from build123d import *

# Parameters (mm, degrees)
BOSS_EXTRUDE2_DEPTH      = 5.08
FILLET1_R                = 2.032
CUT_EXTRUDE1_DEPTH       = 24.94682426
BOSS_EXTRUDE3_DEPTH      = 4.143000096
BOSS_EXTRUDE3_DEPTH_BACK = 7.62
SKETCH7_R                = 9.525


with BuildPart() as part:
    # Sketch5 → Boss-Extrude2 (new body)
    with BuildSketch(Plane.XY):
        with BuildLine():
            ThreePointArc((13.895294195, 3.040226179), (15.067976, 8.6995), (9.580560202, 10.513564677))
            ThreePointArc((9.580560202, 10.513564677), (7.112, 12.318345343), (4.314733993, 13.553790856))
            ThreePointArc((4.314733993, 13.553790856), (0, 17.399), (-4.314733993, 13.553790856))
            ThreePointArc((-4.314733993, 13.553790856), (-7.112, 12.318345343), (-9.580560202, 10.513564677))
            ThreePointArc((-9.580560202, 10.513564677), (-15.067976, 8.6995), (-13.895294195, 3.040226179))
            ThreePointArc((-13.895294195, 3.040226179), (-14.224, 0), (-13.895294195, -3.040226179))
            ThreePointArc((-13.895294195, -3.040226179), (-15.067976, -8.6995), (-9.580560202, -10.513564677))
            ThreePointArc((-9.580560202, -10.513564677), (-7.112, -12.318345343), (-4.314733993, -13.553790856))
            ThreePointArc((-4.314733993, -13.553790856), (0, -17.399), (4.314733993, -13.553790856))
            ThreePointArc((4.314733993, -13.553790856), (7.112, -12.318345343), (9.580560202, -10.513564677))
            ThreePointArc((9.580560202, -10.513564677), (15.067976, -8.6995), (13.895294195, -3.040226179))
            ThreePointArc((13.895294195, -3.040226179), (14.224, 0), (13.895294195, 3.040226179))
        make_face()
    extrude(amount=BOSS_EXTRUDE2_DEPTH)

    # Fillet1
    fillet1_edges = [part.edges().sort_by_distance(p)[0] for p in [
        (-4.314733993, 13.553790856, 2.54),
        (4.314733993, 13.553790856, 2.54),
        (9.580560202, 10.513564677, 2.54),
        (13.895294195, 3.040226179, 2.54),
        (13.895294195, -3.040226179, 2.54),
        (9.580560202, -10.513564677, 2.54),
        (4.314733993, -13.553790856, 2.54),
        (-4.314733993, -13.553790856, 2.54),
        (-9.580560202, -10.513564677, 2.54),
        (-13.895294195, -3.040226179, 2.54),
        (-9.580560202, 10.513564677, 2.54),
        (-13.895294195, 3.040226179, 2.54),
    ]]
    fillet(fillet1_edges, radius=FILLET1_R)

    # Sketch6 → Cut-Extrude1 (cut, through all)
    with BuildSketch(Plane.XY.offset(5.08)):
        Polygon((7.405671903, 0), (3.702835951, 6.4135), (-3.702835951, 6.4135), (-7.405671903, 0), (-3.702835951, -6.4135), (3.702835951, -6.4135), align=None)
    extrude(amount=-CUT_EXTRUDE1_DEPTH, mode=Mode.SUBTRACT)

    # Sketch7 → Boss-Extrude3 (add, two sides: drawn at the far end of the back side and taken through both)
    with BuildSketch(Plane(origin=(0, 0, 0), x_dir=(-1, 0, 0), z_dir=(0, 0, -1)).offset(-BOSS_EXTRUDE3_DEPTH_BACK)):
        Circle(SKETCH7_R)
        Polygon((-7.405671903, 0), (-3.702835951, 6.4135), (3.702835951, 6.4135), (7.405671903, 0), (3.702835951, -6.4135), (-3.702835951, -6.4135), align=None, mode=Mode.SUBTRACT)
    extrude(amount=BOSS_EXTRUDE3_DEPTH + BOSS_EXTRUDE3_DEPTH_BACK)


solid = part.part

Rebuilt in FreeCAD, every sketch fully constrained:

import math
import FreeCAD as App
import Part
import Sketcher
Q = App.Units.Quantity


def edges_at(feature, points):
    """Names of the edges that pass closest to the given points."""
    edges = feature.Shape.Edges
    near = lambda p: min(range(len(edges)), key=lambda i: edges[i].distToShape(Part.Vertex(*p))[0])
    return sorted({f"Edge{near(p) + 1}" for p in points})

doc = App.newDocument("Part")
body = doc.addObject("PartDesign::Body", "Body")

# Sketch on XY plane
sketch1 = body.newObject("Sketcher::SketchObject", "Sketch")
sketch1.AttachmentSupport = (doc.getObject("XY_Plane"), [""])
sketch1.MapMode = "FlatFace"
sketch1.addGeometry([
    Part.ArcOfCircle(Part.Circle(App.Vector(11.306481, 6.5278, 0), App.Vector(0, 0, 1), 4.3434), math.radians(-53.41364), math.radians(113.41364)),  # 0
    Part.ArcOfCircle(Part.Circle(App.Vector(0, 0, 0), App.Vector(0, 0, 1), 14.224), math.radians(47.658431), math.radians(72.341569)),  # 1
    Part.ArcOfCircle(Part.Circle(App.Vector(0, 13.0556, 0), App.Vector(0, 0, 1), 4.3434), math.radians(6.58636), math.radians(173.41364)),  # 2
    Part.ArcOfCircle(Part.Circle(App.Vector(0, 0, 0), App.Vector(0, 0, 1), 14.224), math.radians(107.658431), math.radians(132.341569)),  # 3
    Part.ArcOfCircle(Part.Circle(App.Vector(-11.306481, 6.5278, 0), App.Vector(0, 0, 1), 4.3434), math.radians(66.58636), math.radians(233.41364)),  # 4
    Part.ArcOfCircle(Part.Circle(App.Vector(0, 0, 0), App.Vector(0, 0, 1), 14.224), math.radians(167.658431), math.radians(192.341569)),  # 5
    Part.ArcOfCircle(Part.Circle(App.Vector(-11.306481, -6.5278, 0), App.Vector(0, 0, 1), 4.3434), math.radians(126.58636), math.radians(293.41364)),  # 6
    Part.ArcOfCircle(Part.Circle(App.Vector(0, 0, 0), App.Vector(0, 0, 1), 14.224), math.radians(-132.341569), math.radians(-107.658431)),  # 7
    Part.ArcOfCircle(Part.Circle(App.Vector(0, -13.0556, 0), App.Vector(0, 0, 1), 4.3434), math.radians(-173.41364), math.radians(-6.58636)),  # 8
    Part.ArcOfCircle(Part.Circle(App.Vector(0, 0, 0), App.Vector(0, 0, 1), 14.224), math.radians(-72.341569), math.radians(-47.658431)),  # 9
    Part.ArcOfCircle(Part.Circle(App.Vector(11.306481, -6.5278, 0), App.Vector(0, 0, 1), 4.3434), math.radians(-113.41364), math.radians(53.41364)),  # 10
    Part.ArcOfCircle(Part.Circle(App.Vector(0, 0, 0), App.Vector(0, 0, 1), 14.224), math.radians(-12.341569), math.radians(12.341569)),  # 11
], False)
sketch1.addConstraint([
    Sketcher.Constraint("Coincident", 0, 2, 1, 1),
    Sketcher.Constraint("Coincident", 1, 2, 2, 1),
    Sketcher.Constraint("Coincident", 2, 2, 3, 1),
    Sketcher.Constraint("Coincident", 3, 2, 4, 1),
    Sketcher.Constraint("Coincident", 4, 2, 5, 1),
    Sketcher.Constraint("Coincident", 5, 2, 6, 1),
    Sketcher.Constraint("Coincident", 6, 2, 7, 1),
    Sketcher.Constraint("Coincident", 7, 2, 8, 1),
    Sketcher.Constraint("Coincident", 8, 2, 9, 1),
    Sketcher.Constraint("Coincident", 9, 2, 10, 1),
    Sketcher.Constraint("Coincident", 10, 2, 11, 1),
    Sketcher.Constraint("Coincident", 11, 2, 0, 1),
    Sketcher.Constraint("Coincident", 1, 3, -1, 1),
    Sketcher.Constraint("Coincident", 3, 3, -1, 1),
    Sketcher.Constraint("Coincident", 5, 3, -1, 1),
    Sketcher.Constraint("Coincident", 7, 3, -1, 1),
    Sketcher.Constraint("Coincident", 9, 3, -1, 1),
    Sketcher.Constraint("Coincident", 11, 3, -1, 1),
    Sketcher.Constraint("Equal", 0, 2),
    Sketcher.Constraint("Equal", 1, 3),
    Sketcher.Constraint("Equal", 2, 4),
    Sketcher.Constraint("Equal", 3, 5),
    Sketcher.Constraint("Equal", 4, 6),
    Sketcher.Constraint("Equal", 5, 7),
    Sketcher.Constraint("Equal", 6, 8),
    Sketcher.Constraint("Equal", 7, 9),
    Sketcher.Constraint("Equal", 8, 10),
    Sketcher.Constraint("Equal", 9, 11),
    Sketcher.Constraint("Symmetric", 0, 3, 6, 3, -1, 1),
    Sketcher.Constraint("Symmetric", 2, 3, 8, 3, -1, 1),
    Sketcher.Constraint("Symmetric", 4, 3, 10, 3, -1, 1),
    Sketcher.Constraint("Symmetric", 0, 3, 4, 3, -2),
    Sketcher.Constraint("PointOnObject", 2, 3, -2),
    Sketcher.Constraint("Radius", 1, Q("0.56 in")),
    Sketcher.Constraint("Radius", 0, Q("0.171 in")),
    Sketcher.Constraint("DistanceY", -1, 1, 0, 3, Q("0.257 in")),
    Sketcher.Constraint("DistanceY", -1, 1, 2, 3, Q("0.514 in")),
    Sketcher.Constraint("DistanceX", -1, 1, 0, 3, Q("11.306481 mm")),
])
pad1 = body.newObject("PartDesign::Pad", "Pad")
pad1.Profile = sketch1
pad1.Length = Q("0.2 in")
doc.recompute()

fillet = body.newObject("PartDesign::Fillet", "Fillet")
fillet.Base = (pad1, edges_at(pad1, [
    (-4.315, 13.554, 2.54),
    (4.315, 13.554, 2.54),
    (9.581, 10.514, 2.54),
    (13.895, 3.04, 2.54),
    (13.895, -3.04, 2.54),
    (9.581, -10.514, 2.54),
    (4.315, -13.554, 2.54),
    (-4.315, -13.554, 2.54),
    (-9.581, -10.514, 2.54),
    (-13.895, -3.04, 2.54),
    (-9.581, 10.514, 2.54),
    (-13.895, 3.04, 2.54),
]))
fillet.Radius = Q("0.08 in")

# Sketch on XY plane
sketch2 = body.newObject("Sketcher::SketchObject", "Sketch001")
sketch2.AttachmentSupport = (doc.getObject("XY_Plane"), [""])
sketch2.MapMode = "FlatFace"
sketch2.AttachmentOffset = App.Placement(App.Vector(0, 0, 0.2 * 25.4), App.Rotation())
sketch2.addGeometry([
    Part.LineSegment(App.Vector(7.405672, 0, 0), App.Vector(3.702836, 6.4135, 0)),  # 0
    Part.LineSegment(App.Vector(3.702836, 6.4135, 0), App.Vector(-3.702836, 6.4135, 0)),  # 1
    Part.LineSegment(App.Vector(-3.702836, 6.4135, 0), App.Vector(-7.405672, 0, 0)),  # 2
    Part.LineSegment(App.Vector(-7.405672, 0, 0), App.Vector(-3.702836, -6.4135, 0)),  # 3
    Part.LineSegment(App.Vector(-3.702836, -6.4135, 0), App.Vector(3.702836, -6.4135, 0)),  # 4
    Part.LineSegment(App.Vector(3.702836, -6.4135, 0), App.Vector(7.405672, 0, 0)),  # 5
], False)
sketch2.addConstraint([
    Sketcher.Constraint("Coincident", 0, 2, 1, 1),
    Sketcher.Constraint("Coincident", 1, 2, 2, 1),
    Sketcher.Constraint("Coincident", 2, 2, 3, 1),
    Sketcher.Constraint("Coincident", 3, 2, 4, 1),
    Sketcher.Constraint("Coincident", 4, 2, 5, 1),
    Sketcher.Constraint("Coincident", 5, 2, 0, 1),
    Sketcher.Constraint("Horizontal", 1),
    Sketcher.Constraint("Horizontal", 4),
    Sketcher.Constraint("Symmetric", 0, 2, 3, 2, -1, 1),
    Sketcher.Constraint("Symmetric", 2, 2, 5, 2, -1, 1),
    Sketcher.Constraint("PointOnObject", 2, 2, -1),
    Sketcher.Constraint("Parallel", 2, 5),
    Sketcher.Constraint("Vertical", 1, 2, 3, 2),
    Sketcher.Constraint("Angle", 0, Q("120 deg")),
    Sketcher.Constraint("DistanceY", 3, 2, 1, 2, Q("0.505 in")),
    Sketcher.Constraint("DistanceX", 1, 2, 1, 1, Q("7.405672 mm")),
])
pocket1 = body.newObject("PartDesign::Pocket", "Pocket")
pocket1.Profile = sketch2
pocket1.Type = "ThroughAll"

# Sketch on XY plane
sketch3 = body.newObject("Sketcher::SketchObject", "Sketch002")
sketch3.AttachmentSupport = (doc.getObject("XY_Plane"), [""])
sketch3.MapMode = "FlatFace"
sketch3.addGeometry([
    Part.Circle(App.Vector(0, 0, 0), App.Vector(0, 0, 1), 9.525),  # 0
    Part.LineSegment(App.Vector(3.702836, -6.4135, 0), App.Vector(7.405672, 0, 0)),  # 1
    Part.LineSegment(App.Vector(7.405672, 0, 0), App.Vector(3.702836, 6.4135, 0)),  # 2
    Part.LineSegment(App.Vector(3.702836, 6.4135, 0), App.Vector(-3.702836, 6.4135, 0)),  # 3
    Part.LineSegment(App.Vector(-3.702836, 6.4135, 0), App.Vector(-7.405672, 0, 0)),  # 4
    Part.LineSegment(App.Vector(-7.405672, 0, 0), App.Vector(-3.702836, -6.4135, 0)),  # 5
    Part.LineSegment(App.Vector(-3.702836, -6.4135, 0), App.Vector(3.702836, -6.4135, 0)),  # 6
], False)
sketch3.addConstraint([
    Sketcher.Constraint("Coincident", 1, 2, 2, 1),
    Sketcher.Constraint("Coincident", 2, 2, 3, 1),
    Sketcher.Constraint("Coincident", 3, 2, 4, 1),
    Sketcher.Constraint("Coincident", 4, 2, 5, 1),
    Sketcher.Constraint("Coincident", 5, 2, 6, 1),
    Sketcher.Constraint("Coincident", 6, 2, 1, 1),
    Sketcher.Constraint("Horizontal", 3),
    Sketcher.Constraint("Horizontal", 6),
    Sketcher.Constraint("Coincident", 0, 3, -1, 1),
    Sketcher.Constraint("Symmetric", 1, 2, 4, 2, -1, 1),
    Sketcher.Constraint("Symmetric", 2, 2, 5, 2, -1, 1),
    Sketcher.Constraint("PointOnObject", 1, 2, -1),
    Sketcher.Constraint("Parallel", 1, 4),
    Sketcher.Constraint("Vertical", 3, 2, 5, 2),
    Sketcher.Constraint("Diameter", 0, Q("0.75 in")),
    Sketcher.Constraint("Angle", 1, Q("60 deg")),
    Sketcher.Constraint("DistanceY", 5, 2, 3, 2, Q("0.505 in")),
    Sketcher.Constraint("DistanceX", 3, 2, 3, 1, Q("7.405672 mm")),
])
pad2 = body.newObject("PartDesign::Pad", "Pad001")
pad2.Profile = sketch3
pad2.Type = "TwoLengths"
pad2.Length = 4.143
pad2.Length2 = Q("0.3 in")
pad2.Reversed = True

doc.recompute()
